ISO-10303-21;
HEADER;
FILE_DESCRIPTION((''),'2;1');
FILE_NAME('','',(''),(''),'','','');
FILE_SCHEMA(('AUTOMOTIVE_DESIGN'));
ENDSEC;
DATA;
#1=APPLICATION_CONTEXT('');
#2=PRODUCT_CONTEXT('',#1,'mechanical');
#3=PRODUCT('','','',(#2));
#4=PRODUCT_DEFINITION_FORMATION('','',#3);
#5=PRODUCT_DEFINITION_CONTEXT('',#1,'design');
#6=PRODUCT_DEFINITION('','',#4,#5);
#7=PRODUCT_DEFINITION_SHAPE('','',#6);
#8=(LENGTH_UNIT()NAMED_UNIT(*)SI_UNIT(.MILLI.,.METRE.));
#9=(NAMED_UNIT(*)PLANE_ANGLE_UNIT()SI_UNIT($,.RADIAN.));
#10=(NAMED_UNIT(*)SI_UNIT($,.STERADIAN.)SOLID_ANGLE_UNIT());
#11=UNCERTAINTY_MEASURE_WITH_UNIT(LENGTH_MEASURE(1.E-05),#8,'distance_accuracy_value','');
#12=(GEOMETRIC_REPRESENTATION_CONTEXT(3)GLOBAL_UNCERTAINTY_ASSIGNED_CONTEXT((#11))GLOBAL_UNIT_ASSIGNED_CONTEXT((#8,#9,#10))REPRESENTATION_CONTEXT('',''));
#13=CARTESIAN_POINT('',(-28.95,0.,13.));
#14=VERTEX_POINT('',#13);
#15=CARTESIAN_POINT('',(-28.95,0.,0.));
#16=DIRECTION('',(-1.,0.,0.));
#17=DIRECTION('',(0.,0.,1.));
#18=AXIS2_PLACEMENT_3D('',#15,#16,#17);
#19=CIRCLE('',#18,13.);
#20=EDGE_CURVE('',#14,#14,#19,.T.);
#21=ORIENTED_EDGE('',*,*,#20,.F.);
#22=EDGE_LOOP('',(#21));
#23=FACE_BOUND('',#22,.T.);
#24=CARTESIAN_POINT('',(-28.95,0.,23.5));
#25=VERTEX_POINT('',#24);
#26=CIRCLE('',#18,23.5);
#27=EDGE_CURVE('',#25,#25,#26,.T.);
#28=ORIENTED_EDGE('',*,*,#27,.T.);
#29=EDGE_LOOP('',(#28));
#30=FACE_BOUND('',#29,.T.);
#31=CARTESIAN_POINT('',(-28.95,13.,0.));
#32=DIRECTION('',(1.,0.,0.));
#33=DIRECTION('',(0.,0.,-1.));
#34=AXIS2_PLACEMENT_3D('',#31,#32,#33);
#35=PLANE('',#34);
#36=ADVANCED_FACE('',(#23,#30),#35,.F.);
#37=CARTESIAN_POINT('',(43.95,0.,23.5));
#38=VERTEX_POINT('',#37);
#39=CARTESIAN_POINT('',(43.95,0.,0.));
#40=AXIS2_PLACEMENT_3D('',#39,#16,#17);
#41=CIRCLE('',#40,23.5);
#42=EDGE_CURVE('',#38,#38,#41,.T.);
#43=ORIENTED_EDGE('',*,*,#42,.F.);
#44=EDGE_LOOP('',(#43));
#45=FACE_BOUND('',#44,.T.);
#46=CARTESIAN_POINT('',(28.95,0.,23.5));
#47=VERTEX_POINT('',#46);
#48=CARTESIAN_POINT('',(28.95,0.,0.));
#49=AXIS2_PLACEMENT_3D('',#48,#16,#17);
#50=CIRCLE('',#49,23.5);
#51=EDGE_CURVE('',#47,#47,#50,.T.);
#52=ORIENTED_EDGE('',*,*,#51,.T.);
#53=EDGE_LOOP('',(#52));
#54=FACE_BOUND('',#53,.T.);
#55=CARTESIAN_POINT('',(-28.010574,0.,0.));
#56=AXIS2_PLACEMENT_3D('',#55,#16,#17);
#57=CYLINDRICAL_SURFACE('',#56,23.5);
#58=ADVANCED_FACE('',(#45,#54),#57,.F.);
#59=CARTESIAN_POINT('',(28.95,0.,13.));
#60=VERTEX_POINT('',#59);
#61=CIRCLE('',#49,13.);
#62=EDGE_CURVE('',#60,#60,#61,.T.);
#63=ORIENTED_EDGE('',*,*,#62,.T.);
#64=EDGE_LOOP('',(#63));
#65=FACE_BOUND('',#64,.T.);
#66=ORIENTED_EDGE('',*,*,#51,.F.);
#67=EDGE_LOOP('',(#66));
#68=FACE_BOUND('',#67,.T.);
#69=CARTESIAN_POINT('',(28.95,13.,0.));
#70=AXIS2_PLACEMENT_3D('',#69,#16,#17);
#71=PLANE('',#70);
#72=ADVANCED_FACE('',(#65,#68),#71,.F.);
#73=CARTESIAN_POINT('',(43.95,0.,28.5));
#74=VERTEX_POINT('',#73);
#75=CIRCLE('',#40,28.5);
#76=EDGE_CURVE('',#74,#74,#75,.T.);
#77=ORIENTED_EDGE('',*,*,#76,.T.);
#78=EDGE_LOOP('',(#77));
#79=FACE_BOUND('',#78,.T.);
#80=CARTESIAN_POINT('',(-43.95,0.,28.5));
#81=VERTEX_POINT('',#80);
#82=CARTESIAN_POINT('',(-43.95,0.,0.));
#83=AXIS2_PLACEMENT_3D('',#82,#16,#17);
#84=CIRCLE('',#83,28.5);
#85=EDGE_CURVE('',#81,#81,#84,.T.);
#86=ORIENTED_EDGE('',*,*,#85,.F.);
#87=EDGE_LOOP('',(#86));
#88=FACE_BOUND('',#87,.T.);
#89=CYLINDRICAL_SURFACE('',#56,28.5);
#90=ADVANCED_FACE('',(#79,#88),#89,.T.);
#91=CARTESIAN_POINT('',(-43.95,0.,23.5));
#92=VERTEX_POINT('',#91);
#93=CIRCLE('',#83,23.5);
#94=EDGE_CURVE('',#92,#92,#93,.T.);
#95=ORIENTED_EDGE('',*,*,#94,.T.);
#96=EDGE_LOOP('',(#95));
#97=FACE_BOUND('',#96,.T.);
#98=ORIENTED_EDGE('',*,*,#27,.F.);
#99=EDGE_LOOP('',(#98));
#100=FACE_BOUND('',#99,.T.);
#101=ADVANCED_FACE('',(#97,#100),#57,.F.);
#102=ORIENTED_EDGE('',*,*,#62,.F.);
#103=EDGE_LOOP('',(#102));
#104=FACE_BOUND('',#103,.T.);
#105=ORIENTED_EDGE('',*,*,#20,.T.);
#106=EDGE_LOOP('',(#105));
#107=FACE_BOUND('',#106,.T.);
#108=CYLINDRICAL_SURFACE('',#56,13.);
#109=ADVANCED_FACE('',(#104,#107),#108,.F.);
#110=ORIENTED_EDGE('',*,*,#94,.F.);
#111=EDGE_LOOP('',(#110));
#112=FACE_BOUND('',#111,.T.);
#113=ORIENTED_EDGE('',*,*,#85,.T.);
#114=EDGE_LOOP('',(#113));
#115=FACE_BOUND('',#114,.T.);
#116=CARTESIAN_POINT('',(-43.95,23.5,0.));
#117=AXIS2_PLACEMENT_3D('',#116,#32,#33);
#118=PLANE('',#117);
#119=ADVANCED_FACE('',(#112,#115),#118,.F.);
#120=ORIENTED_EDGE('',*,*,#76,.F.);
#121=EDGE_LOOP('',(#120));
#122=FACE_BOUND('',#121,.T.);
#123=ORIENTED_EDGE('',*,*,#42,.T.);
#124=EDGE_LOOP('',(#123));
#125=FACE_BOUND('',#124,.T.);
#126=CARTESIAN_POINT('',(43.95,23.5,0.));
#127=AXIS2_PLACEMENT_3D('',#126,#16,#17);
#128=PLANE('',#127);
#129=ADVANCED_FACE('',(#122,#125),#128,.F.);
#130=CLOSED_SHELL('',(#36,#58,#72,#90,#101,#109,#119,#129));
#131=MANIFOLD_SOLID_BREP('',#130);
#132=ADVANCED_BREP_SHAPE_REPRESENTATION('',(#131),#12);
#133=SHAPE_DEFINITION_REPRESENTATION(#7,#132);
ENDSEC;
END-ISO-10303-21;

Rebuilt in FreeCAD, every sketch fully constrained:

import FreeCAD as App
import Part
import Sketcher

V = App.Vector

doc = App.newDocument("Part")
body = doc.addObject("PartDesign::Body", "Body")

# Sketch on XY plane
sketch1 = doc.addObject("Sketcher::SketchObject", "Sketch")
body.addObject(sketch1)
sketch1.AttachmentSupport = (doc.XY_Plane, [""])
sketch1.MapMode = "FlatFace"
sketch1.addGeometry([
    Part.LineSegment(V(29, 13, 0), V(29, 24, 0)),  # 0
    Part.LineSegment(V(29, 24, 0), V(44, 24, 0)),  # 1
    Part.LineSegment(V(44, 24, 0), V(44, 28, 0)),  # 2
    Part.LineSegment(V(44, 28, 0), V(-44, 28, 0)),  # 3
    Part.LineSegment(V(-44, 28, 0), V(-44, 24, 0)),  # 4
    Part.LineSegment(V(-44, 24, 0), V(-29, 24, 0)),  # 5
    Part.LineSegment(V(-29, 24, 0), V(-29, 13, 0)),  # 6
    Part.LineSegment(V(-29, 13, 0), V(29, 13, 0)),  # 7
], False)
sketch1.addConstraint([
    Sketcher.Constraint("Coincident", 0, 2, 1, 1),
    Sketcher.Constraint("Coincident", 1, 2, 2, 1),
    Sketcher.Constraint("Coincident", 2, 2, 3, 1),
    Sketcher.Constraint("Coincident", 3, 2, 4, 1),
    Sketcher.Constraint("Coincident", 4, 2, 5, 1),
    Sketcher.Constraint("Coincident", 5, 2, 6, 1),
    Sketcher.Constraint("Coincident", 6, 2, 7, 1),
    Sketcher.Constraint("Coincident", 7, 2, 0, 1),
    Sketcher.Constraint("Vertical", 0),
    Sketcher.Constraint("Horizontal", 1),
    Sketcher.Constraint("Vertical", 2),
    Sketcher.Constraint("Horizontal", 3),
    Sketcher.Constraint("Vertical", 4),
    Sketcher.Constraint("Horizontal", 5),
    Sketcher.Constraint("Vertical", 6),
    Sketcher.Constraint("Horizontal", 7),
    Sketcher.Constraint("Symmetric", 1, 2, 4, 2, -2),
    Sketcher.Constraint("Equal", 1, 5),
    Sketcher.Constraint("DistanceX", 1, 1, 1, 2, 15.0),
    Sketcher.Constraint("DistanceY", 2, 1, 2, 2, 5.0),
    Sketcher.Constraint("DistanceX", 3, 2, 3, 1, 87.9),
    Sketcher.Constraint("DistanceY", 0, 1, 0, 2, 10.5),
    Sketcher.Constraint("DistanceY", -1, 1, 6, 2, 13.0),
])
revolution = doc.addObject("PartDesign::Revolution", "Revolution")
body.addObject(revolution)
revolution.Profile = sketch1
revolution.ReferenceAxis = (sketch1, ["H_Axis"])
revolution.Angle = 360

doc.recompute()
